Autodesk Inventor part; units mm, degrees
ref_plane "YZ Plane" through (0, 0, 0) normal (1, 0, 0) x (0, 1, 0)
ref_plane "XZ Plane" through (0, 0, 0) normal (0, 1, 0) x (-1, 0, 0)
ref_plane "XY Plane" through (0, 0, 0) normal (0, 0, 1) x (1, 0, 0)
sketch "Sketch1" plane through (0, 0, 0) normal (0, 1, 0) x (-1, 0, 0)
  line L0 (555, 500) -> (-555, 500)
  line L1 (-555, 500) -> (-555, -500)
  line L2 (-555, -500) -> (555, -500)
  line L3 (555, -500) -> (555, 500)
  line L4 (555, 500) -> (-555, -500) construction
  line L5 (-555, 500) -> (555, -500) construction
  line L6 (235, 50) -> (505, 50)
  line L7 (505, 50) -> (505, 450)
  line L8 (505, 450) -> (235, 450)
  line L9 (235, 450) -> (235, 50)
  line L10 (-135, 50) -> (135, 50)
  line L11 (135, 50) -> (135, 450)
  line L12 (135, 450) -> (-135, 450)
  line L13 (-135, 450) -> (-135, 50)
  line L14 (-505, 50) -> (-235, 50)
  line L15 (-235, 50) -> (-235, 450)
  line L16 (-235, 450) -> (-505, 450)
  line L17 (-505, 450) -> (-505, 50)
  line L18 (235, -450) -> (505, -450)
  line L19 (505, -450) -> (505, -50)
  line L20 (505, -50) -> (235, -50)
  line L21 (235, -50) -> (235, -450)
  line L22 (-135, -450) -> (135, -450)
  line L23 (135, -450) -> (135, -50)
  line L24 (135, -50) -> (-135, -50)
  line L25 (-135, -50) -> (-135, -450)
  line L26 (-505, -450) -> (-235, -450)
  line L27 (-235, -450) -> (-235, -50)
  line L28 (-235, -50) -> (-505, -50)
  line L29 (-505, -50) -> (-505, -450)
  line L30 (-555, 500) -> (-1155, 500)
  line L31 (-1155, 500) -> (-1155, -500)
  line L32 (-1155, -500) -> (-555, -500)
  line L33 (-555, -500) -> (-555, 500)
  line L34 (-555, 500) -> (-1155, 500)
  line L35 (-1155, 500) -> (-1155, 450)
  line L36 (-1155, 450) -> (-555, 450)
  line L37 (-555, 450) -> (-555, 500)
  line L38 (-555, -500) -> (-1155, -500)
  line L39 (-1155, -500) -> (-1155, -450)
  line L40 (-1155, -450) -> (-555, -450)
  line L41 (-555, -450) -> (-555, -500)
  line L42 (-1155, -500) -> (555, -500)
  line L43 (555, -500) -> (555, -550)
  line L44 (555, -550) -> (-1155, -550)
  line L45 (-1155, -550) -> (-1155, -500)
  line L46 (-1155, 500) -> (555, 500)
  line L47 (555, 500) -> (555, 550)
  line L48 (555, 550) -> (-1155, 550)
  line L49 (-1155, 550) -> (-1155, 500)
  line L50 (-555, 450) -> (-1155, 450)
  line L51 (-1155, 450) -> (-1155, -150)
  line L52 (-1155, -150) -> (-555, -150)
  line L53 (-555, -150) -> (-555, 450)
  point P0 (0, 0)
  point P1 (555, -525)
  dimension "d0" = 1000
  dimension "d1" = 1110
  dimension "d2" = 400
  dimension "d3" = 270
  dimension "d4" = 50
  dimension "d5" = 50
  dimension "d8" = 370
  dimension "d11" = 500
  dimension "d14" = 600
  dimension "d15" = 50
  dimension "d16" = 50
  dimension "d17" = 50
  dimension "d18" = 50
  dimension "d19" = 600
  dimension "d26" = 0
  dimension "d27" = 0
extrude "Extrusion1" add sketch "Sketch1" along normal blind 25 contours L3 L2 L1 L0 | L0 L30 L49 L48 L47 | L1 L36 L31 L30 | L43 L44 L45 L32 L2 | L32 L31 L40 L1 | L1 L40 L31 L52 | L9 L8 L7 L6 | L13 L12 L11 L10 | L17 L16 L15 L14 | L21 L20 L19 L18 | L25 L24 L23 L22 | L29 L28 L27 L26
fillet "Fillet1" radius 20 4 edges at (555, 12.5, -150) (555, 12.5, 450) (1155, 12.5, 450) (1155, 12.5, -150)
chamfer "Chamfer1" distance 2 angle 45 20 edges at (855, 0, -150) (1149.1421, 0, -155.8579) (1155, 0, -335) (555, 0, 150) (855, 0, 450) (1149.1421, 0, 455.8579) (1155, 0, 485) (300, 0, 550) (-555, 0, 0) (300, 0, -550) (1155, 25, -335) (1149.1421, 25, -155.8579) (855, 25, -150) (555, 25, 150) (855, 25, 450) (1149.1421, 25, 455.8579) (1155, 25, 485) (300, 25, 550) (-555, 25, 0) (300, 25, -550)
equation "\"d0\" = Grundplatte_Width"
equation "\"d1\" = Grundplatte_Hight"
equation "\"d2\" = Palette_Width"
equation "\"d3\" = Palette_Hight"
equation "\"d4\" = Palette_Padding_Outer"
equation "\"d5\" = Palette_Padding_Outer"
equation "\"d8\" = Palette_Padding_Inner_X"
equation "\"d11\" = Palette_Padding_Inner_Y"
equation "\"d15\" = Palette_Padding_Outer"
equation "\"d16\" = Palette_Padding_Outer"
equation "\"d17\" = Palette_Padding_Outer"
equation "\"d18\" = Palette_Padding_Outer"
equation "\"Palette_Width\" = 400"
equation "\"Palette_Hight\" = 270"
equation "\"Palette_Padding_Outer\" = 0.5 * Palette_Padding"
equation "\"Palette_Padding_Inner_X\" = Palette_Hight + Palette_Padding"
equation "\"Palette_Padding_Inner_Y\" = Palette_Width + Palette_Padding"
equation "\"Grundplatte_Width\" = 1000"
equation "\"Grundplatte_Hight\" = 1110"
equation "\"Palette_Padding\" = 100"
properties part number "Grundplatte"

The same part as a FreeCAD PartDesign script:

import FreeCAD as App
import Part
import Sketcher
from FreeCAD import Vector
Q = App.Units.Quantity


def edges_at(feature, points):
    """Names of the edges that pass closest to the given points."""
    edges = feature.Shape.Edges
    near = lambda p: min(range(len(edges)), key=lambda i: edges[i].distToShape(Part.Vertex(*p))[0])
    return sorted({f"Edge{near(p) + 1}" for p in points})

doc = App.newDocument("Part")
params = doc.addObject("Spreadsheet::Sheet", "Params")
for row, (alias, value) in enumerate([
    ("sketch1_width", "600 mm"),
    ("sketch1_height", "400 mm"),
    ("sketch1_height2", "100 mm"),
    ("pad1_length", "25 mm"),
    ("fillet_radius", "20 mm"),
    ("chamfer_size", "2 mm"),
], start=1):
    params.set(f"A{row}", alias)
    params.set(f"B{row}", "=" + value)
    params.setAlias(f"B{row}", alias)

body = doc.addObject("PartDesign::Body", "Body")

sketch1 = body.newObject("Sketcher::SketchObject", "Sketch")
sketch1.AttachmentSupport = (doc.getObject("XZ_Plane"), [""])
sketch1.MapMode = "FlatFace"
sketch1.addGeometry([
    Part.LineSegment(Vector(-555, 550, 0), Vector(1155, 550, 0)),
    Part.LineSegment(Vector(1155, 550, 0), Vector(1155, 450, 0)),
    Part.LineSegment(Vector(1155, 450, 0), Vector(555, 450, 0)),
    Part.LineSegment(Vector(555, 450, 0), Vector(555, -150, 0)),
    Part.LineSegment(Vector(555, -150, 0), Vector(1155, -150, 0)),
    Part.LineSegment(Vector(1155, -150, 0), Vector(1155, -550, 0)),
    Part.LineSegment(Vector(1155, -550, 0), Vector(-555, -550, 0)),
    Part.LineSegment(Vector(-555, -550, 0), Vector(-555, 550, 0)),
], False)
sketch1.addConstraint([
    Sketcher.Constraint("Coincident", 0, 2, 1, 1),
    Sketcher.Constraint("Coincident", 1, 2, 2, 1),
    Sketcher.Constraint("Coincident", 2, 2, 3, 1),
    Sketcher.Constraint("Coincident", 3, 2, 4, 1),
    Sketcher.Constraint("Coincident", 4, 2, 5, 1),
    Sketcher.Constraint("Coincident", 5, 2, 6, 1),
    Sketcher.Constraint("Coincident", 6, 2, 7, 1),
    Sketcher.Constraint("Coincident", 7, 2, 0, 1),
    Sketcher.Constraint("Horizontal", 0),
    Sketcher.Constraint("Vertical", 1),
    Sketcher.Constraint("Horizontal", 2),
    Sketcher.Constraint("Vertical", 3),
    Sketcher.Constraint("Horizontal", 4),
    Sketcher.Constraint("Vertical", 5),
    Sketcher.Constraint("Horizontal", 6),
    Sketcher.Constraint("Vertical", 7),
    Sketcher.Constraint("Symmetric", 0, 2, 5, 2, -1),
    Sketcher.Constraint("Equal", 4, 3),
    Sketcher.Constraint("DistanceX", 2, 2, 2, 1, Q("600 mm")),
    Sketcher.Constraint("DistanceY", 5, 2, 5, 1, Q("400 mm")),
    Sketcher.Constraint("DistanceX", 6, 2, 3, 2, Q("1110 mm")),
    Sketcher.Constraint("DistanceY", 1, 2, 1, 1, Q("100 mm")),
    Sketcher.Constraint("DistanceX", -1, 1, 0, 2, Q("1155 mm")),
])
sketch1.setExpression("Constraints[18]", "Params.sketch1_width")
sketch1.setExpression("Constraints[19]", "Params.sketch1_height")
sketch1.setExpression("Constraints[21]", "Params.sketch1_height2")
pad1 = body.newObject("PartDesign::Pad", "Pad")
pad1.Profile = sketch1
pad1.setExpression("Length", "Params.pad1_length")
pad1.Reversed = True
doc.recompute()

fillet = body.newObject("PartDesign::Fillet", "Fillet")
fillet.Base = (pad1, edges_at(pad1, [
    (555, 12.5, -150),
    (555, 12.5, 450),
    (1155, 12.5, 450),
    (1155, 12.5, -150),
]))
fillet.setExpression("Radius", "Params.fillet_radius")
doc.recompute()

chamfer = body.newObject("PartDesign::Chamfer", "Chamfer")
chamfer.Base = (fillet, edges_at(fillet, [
    (855, 0, -150),
    (1149.142, 0, -155.858),
    (1155, 0, -335),
    (555, 0, 150),
    (855, 0, 450),
    (1149.142, 0, 455.858),
    (1155, 0, 485),
    (300, 0, 550),
    (-555, 0, 0),
    (300, 0, -550),
    (1155, 25, -335),
    (1149.142, 25, -155.858),
    (855, 25, -150),
    (555, 25, 150),
    (855, 25, 450),
    (1149.142, 25, 455.858),
    (1155, 25, 485),
    (300, 25, 550),
    (-555, 25, 0),
    (300, 25, -550),
]))
chamfer.setExpression("Size", "Params.chamfer_size")

doc.recompute()
